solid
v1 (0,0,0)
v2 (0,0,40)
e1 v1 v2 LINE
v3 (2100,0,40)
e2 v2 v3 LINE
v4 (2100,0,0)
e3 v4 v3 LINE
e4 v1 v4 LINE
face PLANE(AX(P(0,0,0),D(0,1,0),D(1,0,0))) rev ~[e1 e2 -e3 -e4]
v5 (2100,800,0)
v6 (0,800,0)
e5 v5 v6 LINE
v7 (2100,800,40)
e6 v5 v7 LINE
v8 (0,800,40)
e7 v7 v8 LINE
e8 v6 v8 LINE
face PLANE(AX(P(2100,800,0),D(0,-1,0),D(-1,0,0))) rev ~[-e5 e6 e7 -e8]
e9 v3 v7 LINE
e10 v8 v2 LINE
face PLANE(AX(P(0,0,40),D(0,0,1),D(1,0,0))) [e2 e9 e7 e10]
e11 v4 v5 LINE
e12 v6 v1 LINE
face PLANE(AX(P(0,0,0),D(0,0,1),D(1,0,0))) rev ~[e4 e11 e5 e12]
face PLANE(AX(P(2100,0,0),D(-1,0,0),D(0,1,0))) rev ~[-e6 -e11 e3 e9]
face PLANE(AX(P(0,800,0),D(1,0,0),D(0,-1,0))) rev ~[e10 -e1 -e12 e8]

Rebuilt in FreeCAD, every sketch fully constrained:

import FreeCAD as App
import Part
import Sketcher
from FreeCAD import Vector
Q = App.Units.Quantity

doc = App.newDocument("Part")
params = doc.addObject("Spreadsheet::Sheet", "Params")
for row, (alias, value) in enumerate([
    ("sketch1_width", "2100 mm"),
    ("sketch1_height", "800 mm"),
    ("pad1_length", "40 mm"),
], start=1):
    params.set(f"A{row}", alias)
    params.set(f"B{row}", "=" + value)
    params.setAlias(f"B{row}", alias)

body = doc.addObject("PartDesign::Body", "Body")

# Sketch on XY plane
sketch1 = body.newObject("Sketcher::SketchObject", "Sketch")
sketch1.AttachmentSupport = (doc.getObject("XY_Plane"), [""])
sketch1.MapMode = "FlatFace"
sketch1.addGeometry(Part.LineSegment(Vector(0, 800, 0), Vector(0, 0, 0)), False)
sketch1.addGeometry(Part.LineSegment(Vector(0, 0, 0), Vector(2100, 0, 0)), False)
sketch1.addGeometry(Part.LineSegment(Vector(2100, 0, 0), Vector(2100, 800, 0)), False)
sketch1.addGeometry(Part.LineSegment(Vector(2100, 800, 0), Vector(0, 800, 0)), False)
sketch1.addConstraint(Sketcher.Constraint("Coincident", 0, 2, 1, 1))
sketch1.addConstraint(Sketcher.Constraint("Coincident", 1, 2, 2, 1))
sketch1.addConstraint(Sketcher.Constraint("Coincident", 2, 2, 3, 1))
sketch1.addConstraint(Sketcher.Constraint("Coincident", 3, 2, 0, 1))
sketch1.addConstraint(Sketcher.Constraint("Vertical", 0))
sketch1.addConstraint(Sketcher.Constraint("Horizontal", 1))
sketch1.addConstraint(Sketcher.Constraint("Vertical", 2))
sketch1.addConstraint(Sketcher.Constraint("Horizontal", 3))
sketch1.addConstraint(Sketcher.Constraint("Coincident", 0, 2, -1, 1))
sketch1.addConstraint(Sketcher.Constraint("DistanceX", 1, 1, 1, 2, Q("2100 mm")))
sketch1.addConstraint(Sketcher.Constraint("DistanceY", 0, 2, 0, 1, Q("800 mm")))
sketch1.setExpression("Constraints[9]", "Params.sketch1_width")
sketch1.setExpression("Constraints[10]", "Params.sketch1_height")
pad1 = body.newObject("PartDesign::Pad", "Pad")
pad1.Profile = sketch1
pad1.setExpression("Length", "Params.pad1_length")

doc.recompute()
